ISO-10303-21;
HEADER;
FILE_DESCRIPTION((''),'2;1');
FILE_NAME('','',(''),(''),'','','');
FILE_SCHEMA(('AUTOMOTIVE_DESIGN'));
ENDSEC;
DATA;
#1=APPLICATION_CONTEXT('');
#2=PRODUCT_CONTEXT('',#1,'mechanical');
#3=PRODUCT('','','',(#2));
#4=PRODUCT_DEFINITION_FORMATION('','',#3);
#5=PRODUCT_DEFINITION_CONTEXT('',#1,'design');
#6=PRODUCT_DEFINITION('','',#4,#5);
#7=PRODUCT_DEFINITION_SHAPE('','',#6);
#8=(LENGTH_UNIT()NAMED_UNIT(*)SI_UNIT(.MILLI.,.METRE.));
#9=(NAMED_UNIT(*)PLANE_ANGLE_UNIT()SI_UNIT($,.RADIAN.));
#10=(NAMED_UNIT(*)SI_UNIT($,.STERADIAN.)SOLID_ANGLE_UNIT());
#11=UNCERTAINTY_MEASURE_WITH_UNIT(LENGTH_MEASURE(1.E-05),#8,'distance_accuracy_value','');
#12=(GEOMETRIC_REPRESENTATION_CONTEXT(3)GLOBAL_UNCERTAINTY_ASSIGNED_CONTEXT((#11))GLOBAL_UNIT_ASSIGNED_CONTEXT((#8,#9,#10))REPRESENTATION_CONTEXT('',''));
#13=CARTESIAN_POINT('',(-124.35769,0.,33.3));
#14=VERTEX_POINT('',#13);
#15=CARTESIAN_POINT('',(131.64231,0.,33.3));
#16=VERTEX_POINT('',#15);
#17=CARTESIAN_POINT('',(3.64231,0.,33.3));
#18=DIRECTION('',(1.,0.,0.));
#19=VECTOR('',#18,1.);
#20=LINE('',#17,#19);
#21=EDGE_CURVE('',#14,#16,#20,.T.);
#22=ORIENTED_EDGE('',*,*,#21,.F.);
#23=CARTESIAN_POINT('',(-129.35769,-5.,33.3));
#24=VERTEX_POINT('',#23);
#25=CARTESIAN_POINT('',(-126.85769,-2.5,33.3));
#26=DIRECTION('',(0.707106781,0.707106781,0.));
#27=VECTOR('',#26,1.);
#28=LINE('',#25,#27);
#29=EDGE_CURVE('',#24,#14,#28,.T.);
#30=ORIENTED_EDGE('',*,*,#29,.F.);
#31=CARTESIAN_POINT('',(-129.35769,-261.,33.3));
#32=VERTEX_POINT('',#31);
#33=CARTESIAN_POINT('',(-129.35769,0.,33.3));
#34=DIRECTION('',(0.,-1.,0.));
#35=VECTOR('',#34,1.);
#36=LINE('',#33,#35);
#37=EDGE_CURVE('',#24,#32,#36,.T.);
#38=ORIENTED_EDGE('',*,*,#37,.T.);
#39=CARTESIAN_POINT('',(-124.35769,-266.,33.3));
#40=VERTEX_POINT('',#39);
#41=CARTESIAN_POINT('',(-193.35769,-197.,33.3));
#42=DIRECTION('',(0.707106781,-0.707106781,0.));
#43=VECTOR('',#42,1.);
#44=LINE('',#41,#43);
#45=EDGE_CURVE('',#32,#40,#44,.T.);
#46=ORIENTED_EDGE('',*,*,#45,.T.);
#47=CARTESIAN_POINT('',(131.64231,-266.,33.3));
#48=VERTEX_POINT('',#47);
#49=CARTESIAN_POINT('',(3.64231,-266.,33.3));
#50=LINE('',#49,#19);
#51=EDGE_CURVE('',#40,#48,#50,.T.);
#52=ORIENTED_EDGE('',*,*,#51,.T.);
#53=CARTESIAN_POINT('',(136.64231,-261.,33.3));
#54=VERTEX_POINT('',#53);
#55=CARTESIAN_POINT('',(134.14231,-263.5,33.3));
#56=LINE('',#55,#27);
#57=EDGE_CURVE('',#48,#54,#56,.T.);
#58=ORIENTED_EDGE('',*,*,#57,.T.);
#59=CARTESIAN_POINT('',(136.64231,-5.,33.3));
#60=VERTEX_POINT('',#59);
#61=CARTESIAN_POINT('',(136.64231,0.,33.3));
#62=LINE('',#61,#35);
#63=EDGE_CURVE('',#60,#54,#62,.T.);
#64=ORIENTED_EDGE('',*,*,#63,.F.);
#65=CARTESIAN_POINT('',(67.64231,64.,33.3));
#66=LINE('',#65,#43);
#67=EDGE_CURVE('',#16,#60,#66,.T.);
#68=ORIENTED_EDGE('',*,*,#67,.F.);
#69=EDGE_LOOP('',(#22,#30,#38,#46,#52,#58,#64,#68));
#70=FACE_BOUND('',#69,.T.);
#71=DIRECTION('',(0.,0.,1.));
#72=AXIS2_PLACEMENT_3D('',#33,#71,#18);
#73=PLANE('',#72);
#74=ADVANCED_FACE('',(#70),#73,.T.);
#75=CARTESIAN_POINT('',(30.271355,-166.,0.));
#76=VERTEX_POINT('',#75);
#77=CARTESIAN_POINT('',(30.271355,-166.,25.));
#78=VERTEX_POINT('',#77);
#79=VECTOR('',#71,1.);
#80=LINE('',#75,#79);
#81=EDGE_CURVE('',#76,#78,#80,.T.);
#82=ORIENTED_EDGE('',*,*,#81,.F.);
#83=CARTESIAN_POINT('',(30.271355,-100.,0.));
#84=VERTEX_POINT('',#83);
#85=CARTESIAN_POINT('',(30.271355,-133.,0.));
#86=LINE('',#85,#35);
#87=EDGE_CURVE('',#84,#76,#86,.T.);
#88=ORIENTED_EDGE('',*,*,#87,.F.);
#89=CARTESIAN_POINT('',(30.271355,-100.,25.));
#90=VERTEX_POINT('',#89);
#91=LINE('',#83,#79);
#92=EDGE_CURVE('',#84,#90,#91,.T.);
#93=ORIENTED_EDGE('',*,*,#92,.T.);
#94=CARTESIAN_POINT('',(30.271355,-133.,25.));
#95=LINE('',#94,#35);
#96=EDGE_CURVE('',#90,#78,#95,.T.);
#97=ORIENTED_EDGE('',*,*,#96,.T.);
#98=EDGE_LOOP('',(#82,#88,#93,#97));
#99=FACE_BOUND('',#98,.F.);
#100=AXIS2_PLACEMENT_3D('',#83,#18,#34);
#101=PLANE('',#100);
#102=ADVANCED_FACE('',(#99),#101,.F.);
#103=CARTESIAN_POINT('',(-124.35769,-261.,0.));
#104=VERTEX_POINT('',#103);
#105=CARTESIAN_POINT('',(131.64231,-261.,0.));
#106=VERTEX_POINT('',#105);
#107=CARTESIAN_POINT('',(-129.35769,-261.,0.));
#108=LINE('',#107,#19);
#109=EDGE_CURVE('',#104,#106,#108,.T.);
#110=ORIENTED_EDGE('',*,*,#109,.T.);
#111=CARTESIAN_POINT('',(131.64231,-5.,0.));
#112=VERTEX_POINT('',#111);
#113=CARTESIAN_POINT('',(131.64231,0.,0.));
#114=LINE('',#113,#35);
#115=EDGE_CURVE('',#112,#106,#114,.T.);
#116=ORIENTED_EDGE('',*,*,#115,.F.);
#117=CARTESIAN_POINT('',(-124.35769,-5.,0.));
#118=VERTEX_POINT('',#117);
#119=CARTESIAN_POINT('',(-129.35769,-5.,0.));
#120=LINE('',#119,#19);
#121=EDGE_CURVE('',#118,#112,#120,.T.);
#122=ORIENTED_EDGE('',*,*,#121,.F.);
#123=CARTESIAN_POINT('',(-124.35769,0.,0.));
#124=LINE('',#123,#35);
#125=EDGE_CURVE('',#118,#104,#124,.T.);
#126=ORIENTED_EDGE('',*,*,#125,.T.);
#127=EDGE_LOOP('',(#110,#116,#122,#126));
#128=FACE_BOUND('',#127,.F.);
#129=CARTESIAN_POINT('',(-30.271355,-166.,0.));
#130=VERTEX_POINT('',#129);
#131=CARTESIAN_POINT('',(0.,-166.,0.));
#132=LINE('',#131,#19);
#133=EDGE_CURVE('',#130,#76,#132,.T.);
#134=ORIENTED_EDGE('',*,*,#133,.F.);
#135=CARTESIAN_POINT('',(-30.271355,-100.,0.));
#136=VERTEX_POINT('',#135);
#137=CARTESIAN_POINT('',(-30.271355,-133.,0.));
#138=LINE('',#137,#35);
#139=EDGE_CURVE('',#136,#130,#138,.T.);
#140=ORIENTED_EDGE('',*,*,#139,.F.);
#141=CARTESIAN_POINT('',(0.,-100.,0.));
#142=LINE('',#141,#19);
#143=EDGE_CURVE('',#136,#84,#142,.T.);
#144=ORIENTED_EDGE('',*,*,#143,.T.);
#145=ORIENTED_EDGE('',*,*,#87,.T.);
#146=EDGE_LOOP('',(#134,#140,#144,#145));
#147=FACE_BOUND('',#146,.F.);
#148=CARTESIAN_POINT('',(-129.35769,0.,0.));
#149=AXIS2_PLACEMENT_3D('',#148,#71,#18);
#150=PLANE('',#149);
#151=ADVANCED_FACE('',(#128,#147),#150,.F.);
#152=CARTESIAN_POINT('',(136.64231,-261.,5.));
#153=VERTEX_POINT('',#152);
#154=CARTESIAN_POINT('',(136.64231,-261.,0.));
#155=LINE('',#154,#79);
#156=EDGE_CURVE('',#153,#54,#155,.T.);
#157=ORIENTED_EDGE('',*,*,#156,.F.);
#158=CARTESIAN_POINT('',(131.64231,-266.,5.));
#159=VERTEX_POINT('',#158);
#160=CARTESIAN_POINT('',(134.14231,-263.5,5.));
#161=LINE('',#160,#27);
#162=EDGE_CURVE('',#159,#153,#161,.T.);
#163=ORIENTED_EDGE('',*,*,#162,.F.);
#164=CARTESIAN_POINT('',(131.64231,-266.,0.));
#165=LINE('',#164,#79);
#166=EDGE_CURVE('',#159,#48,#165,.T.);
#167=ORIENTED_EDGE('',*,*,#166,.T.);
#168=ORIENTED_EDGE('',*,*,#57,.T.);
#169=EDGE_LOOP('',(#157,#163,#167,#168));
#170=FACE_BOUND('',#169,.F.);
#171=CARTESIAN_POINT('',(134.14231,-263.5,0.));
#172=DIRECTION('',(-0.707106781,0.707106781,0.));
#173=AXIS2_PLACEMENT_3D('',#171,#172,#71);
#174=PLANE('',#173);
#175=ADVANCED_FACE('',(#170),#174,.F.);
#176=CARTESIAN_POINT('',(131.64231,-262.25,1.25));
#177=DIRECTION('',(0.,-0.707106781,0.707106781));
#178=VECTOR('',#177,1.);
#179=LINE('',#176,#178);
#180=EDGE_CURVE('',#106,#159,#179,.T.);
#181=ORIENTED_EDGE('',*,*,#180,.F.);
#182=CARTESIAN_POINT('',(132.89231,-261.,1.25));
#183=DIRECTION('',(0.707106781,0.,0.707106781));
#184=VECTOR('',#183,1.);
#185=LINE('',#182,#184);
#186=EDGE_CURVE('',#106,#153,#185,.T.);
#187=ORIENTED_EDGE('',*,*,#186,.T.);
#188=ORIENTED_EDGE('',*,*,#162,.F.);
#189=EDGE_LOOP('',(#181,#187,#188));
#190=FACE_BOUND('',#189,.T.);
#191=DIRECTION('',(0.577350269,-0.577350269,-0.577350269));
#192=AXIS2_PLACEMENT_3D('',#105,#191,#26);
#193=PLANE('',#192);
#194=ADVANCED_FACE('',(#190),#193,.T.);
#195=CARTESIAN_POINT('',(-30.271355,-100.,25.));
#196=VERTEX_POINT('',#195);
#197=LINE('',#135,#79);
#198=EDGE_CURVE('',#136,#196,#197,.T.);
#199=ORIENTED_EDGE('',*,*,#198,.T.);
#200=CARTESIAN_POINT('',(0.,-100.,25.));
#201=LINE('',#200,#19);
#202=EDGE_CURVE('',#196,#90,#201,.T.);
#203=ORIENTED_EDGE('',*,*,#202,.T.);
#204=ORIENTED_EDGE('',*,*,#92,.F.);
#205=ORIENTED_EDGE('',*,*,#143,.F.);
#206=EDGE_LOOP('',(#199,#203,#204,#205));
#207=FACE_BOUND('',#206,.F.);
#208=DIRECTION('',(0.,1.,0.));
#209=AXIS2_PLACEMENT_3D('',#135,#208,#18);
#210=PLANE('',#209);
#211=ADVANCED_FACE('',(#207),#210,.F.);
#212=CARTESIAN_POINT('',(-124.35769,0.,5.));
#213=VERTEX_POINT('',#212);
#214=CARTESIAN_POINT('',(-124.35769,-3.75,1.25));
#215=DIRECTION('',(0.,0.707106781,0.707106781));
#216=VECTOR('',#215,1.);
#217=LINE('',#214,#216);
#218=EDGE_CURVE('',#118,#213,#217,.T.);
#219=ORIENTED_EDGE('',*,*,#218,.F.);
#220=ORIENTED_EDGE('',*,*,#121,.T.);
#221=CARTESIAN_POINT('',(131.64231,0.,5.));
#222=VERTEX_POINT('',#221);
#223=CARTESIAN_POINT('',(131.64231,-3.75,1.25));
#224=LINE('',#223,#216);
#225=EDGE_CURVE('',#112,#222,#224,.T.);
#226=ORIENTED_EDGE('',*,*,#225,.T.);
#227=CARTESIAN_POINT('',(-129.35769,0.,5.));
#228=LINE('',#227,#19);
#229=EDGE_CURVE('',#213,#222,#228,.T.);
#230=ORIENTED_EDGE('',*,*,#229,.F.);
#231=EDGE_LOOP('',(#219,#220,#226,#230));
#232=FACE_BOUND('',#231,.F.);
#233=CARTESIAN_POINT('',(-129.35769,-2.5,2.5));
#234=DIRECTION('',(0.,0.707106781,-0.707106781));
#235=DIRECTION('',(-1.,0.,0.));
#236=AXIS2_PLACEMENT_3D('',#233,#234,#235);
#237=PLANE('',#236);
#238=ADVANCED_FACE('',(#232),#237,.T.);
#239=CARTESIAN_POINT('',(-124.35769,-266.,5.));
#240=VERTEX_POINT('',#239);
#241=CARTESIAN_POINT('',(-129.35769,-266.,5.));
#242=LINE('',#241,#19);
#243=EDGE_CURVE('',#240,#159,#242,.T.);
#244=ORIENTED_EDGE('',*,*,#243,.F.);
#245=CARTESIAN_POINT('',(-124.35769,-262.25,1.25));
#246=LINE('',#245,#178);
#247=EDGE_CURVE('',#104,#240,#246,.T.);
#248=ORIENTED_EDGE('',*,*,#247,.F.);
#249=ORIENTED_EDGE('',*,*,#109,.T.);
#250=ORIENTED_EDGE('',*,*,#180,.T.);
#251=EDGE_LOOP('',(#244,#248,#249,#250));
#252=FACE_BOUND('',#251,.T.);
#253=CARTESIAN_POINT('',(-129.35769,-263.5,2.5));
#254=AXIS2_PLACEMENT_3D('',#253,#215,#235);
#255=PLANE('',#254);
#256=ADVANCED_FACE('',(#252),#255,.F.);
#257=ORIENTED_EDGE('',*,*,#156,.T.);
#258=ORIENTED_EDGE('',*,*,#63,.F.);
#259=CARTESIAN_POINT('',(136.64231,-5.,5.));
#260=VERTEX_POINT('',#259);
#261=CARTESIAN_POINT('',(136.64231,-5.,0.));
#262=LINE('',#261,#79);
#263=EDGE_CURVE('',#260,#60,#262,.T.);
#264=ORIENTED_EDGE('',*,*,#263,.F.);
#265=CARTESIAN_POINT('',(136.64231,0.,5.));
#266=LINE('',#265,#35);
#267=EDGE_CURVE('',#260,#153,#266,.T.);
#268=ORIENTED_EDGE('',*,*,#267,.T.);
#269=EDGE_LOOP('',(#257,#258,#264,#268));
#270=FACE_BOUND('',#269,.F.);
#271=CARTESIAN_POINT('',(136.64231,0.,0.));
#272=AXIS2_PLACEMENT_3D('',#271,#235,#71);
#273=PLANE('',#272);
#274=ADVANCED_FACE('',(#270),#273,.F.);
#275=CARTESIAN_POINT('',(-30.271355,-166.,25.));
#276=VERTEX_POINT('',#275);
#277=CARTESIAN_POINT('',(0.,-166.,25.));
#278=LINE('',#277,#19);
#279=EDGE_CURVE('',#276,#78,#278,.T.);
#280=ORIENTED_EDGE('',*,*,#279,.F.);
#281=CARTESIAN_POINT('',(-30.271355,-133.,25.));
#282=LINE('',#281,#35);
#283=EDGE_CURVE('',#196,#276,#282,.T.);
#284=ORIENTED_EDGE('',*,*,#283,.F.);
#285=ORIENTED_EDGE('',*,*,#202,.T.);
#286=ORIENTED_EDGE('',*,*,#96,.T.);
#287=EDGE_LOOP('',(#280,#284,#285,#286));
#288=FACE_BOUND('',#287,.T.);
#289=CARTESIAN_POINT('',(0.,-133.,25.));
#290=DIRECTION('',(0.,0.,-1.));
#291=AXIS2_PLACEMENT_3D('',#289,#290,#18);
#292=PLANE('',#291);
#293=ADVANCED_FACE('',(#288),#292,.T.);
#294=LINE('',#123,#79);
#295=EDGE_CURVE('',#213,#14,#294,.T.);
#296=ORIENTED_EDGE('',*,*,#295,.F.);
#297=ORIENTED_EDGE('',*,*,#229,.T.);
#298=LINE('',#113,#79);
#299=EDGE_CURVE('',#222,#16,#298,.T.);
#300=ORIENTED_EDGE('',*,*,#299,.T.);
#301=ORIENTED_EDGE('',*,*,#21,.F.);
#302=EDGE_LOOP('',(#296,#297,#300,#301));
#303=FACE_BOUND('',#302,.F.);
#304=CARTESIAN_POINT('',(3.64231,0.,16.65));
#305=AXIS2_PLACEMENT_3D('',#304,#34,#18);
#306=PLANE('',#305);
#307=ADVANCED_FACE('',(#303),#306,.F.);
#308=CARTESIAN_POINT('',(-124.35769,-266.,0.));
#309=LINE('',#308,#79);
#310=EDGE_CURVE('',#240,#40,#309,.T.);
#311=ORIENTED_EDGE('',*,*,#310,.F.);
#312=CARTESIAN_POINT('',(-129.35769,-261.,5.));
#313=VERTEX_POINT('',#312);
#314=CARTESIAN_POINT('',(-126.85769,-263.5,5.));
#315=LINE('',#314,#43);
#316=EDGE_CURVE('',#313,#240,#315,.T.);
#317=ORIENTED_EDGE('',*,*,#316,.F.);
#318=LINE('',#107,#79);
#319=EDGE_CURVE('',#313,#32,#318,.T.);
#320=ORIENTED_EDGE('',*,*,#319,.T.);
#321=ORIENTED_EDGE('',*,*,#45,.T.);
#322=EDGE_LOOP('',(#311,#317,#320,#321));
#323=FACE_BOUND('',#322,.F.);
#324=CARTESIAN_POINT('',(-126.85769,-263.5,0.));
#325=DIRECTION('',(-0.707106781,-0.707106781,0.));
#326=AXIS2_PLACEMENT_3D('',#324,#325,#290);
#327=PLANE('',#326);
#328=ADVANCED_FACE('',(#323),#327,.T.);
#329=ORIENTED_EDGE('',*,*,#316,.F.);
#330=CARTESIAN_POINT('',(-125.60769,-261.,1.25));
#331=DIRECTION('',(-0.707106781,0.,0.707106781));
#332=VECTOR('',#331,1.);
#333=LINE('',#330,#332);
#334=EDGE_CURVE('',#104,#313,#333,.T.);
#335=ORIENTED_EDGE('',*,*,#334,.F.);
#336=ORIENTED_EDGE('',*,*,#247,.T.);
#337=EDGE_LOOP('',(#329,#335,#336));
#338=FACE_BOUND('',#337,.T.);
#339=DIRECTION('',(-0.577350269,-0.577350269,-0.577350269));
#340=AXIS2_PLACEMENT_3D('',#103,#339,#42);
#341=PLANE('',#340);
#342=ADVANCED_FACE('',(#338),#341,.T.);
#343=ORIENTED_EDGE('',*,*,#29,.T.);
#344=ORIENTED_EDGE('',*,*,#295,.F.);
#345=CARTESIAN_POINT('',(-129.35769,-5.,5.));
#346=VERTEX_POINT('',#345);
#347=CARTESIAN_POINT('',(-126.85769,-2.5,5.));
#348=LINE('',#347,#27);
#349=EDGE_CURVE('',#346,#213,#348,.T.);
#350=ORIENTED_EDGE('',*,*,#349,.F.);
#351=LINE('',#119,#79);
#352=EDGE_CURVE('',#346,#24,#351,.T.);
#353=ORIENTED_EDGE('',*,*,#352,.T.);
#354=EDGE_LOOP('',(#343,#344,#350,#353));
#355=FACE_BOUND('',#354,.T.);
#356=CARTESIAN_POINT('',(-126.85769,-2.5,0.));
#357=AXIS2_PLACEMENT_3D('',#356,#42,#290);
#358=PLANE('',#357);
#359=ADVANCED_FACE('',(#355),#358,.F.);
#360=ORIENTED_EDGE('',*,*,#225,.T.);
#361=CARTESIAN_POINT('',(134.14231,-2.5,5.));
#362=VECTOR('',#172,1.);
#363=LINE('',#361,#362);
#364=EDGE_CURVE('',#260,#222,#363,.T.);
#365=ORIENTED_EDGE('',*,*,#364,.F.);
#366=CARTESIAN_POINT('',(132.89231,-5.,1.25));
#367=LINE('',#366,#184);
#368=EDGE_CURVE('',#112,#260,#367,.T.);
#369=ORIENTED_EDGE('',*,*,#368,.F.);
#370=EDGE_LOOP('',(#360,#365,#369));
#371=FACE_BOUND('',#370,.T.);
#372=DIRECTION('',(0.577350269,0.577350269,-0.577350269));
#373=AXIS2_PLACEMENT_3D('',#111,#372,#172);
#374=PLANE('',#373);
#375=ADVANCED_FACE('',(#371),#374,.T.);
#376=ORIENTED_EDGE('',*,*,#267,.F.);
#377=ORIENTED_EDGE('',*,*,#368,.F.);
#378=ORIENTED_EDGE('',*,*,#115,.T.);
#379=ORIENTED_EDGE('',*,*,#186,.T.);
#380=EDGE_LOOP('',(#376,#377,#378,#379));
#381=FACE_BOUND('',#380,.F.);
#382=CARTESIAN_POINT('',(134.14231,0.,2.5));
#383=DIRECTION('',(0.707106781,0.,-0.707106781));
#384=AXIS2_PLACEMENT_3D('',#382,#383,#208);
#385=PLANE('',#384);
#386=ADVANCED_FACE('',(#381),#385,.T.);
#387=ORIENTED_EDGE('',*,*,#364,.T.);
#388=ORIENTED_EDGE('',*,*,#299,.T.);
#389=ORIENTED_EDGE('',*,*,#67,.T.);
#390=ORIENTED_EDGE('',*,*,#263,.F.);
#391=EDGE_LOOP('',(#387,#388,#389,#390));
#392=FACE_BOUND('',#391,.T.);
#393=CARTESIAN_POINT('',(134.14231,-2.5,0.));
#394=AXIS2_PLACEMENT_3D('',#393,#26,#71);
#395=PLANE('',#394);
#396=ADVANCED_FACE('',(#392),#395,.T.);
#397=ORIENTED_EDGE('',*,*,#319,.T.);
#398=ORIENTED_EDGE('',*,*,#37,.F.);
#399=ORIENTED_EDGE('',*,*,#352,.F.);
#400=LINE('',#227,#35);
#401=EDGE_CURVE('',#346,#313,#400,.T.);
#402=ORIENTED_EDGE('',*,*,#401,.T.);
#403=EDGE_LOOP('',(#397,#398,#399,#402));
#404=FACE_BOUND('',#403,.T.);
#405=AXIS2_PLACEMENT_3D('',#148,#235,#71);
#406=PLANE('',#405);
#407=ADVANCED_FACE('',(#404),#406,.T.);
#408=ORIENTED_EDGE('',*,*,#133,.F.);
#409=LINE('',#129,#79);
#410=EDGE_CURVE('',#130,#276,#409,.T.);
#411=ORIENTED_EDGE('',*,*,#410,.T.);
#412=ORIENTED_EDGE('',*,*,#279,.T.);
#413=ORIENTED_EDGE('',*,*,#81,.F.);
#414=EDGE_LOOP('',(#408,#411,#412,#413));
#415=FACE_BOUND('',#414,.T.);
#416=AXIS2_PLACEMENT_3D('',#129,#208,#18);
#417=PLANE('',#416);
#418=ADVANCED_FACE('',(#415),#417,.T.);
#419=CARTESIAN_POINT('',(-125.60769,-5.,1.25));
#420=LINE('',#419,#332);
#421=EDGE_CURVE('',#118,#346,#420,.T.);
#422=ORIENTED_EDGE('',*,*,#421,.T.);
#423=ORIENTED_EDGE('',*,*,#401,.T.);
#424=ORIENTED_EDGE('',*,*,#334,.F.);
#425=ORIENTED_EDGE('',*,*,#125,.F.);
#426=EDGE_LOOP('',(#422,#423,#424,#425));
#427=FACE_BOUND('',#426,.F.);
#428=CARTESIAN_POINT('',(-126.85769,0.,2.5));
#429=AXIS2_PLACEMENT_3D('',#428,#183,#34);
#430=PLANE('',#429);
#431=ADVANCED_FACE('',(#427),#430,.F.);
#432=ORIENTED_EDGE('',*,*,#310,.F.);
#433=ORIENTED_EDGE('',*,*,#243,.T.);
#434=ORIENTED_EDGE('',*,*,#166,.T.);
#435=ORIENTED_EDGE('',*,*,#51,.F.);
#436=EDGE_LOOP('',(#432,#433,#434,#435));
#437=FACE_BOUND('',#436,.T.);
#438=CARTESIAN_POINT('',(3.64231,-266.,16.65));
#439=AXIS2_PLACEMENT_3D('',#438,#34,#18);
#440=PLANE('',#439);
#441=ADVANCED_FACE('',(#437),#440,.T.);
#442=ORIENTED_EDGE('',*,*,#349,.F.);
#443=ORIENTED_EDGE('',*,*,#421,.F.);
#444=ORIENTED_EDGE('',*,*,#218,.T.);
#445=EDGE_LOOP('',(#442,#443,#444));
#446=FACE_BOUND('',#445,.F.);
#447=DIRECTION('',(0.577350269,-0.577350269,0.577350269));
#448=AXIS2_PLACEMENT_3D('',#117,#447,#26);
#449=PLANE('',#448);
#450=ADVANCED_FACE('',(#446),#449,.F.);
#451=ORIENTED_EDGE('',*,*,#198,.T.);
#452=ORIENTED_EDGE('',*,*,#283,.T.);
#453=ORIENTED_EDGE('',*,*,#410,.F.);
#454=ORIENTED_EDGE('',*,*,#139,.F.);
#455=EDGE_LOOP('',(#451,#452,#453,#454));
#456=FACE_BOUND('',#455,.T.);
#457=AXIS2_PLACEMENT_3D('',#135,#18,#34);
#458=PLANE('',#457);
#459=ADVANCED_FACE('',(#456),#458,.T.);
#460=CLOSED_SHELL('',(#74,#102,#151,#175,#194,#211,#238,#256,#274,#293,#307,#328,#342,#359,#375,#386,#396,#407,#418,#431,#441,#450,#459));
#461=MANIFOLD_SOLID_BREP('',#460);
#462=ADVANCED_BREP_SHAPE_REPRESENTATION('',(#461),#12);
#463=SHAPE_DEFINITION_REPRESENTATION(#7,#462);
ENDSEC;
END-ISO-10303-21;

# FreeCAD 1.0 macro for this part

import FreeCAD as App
import Part
import Sketcher

V = App.Vector


def edges_at(feature, points):
    """Names of the edges that pass closest to the given points."""
    edges = feature.Shape.Edges
    near = lambda p: min(range(len(edges)), key=lambda i: edges[i].distToShape(Part.Vertex(*p))[0])
    return sorted({f"Edge{near(p) + 1}" for p in points})

doc = App.newDocument("Part")
body = doc.addObject("PartDesign::Body", "Body")

sketch1 = body.newObject("Sketcher::SketchObject", "Sketch")
sketch1.AttachmentSupport = (doc.getObject("XZ_Plane"), [""])
sketch1.MapMode = "FlatFace"
sketch1.addGeometry(Part.LineSegment(V(-129.35769, 33.3, 0), V(-129.35769, 0, 0)), False)
sketch1.addGeometry(Part.LineSegment(V(-129.35769, 0, 0), V(136.64231, 0, 0)), False)
sketch1.addGeometry(Part.LineSegment(V(136.64231, 0, 0), V(136.64231, 33.3, 0)), False)
sketch1.addGeometry(Part.LineSegment(V(136.64231, 33.3, 0), V(-129.35769, 33.3, 0)), False)
sketch1.addConstraint(Sketcher.Constraint("Coincident", 0, 2, 1, 1))
sketch1.addConstraint(Sketcher.Constraint("Coincident", 1, 2, 2, 1))
sketch1.addConstraint(Sketcher.Constraint("Coincident", 2, 2, 3, 1))
sketch1.addConstraint(Sketcher.Constraint("Coincident", 3, 2, 0, 1))
sketch1.addConstraint(Sketcher.Constraint("Vertical", 0))
sketch1.addConstraint(Sketcher.Constraint("Horizontal", 1))
sketch1.addConstraint(Sketcher.Constraint("Vertical", 2))
sketch1.addConstraint(Sketcher.Constraint("Horizontal", 3))
sketch1.addConstraint(Sketcher.Constraint("PointOnObject", 0, 2, -1))
sketch1.addConstraint(Sketcher.Constraint("DistanceX", 1, 1, 1, 2, 266.0))
sketch1.addConstraint(Sketcher.Constraint("DistanceY", 0, 2, 0, 1, 33.3))
sketch1.addConstraint(Sketcher.Constraint("DistanceX", 0, 2, -1, 1, 129.35769))
pad1 = body.newObject("PartDesign::Pad", "Pad")
pad1.Profile = sketch1
pad1.Length = 266

sketch2 = body.newObject("Sketcher::SketchObject", "Sketch001")
sketch2.AttachmentSupport = (doc.getObject("XY_Plane"), [""])
sketch2.MapMode = "FlatFace"
sketch2.addGeometry(Part.LineSegment(V(-30.271355, -166, 0), V(-30.271355, -100, 0)), False)
sketch2.addGeometry(Part.LineSegment(V(-30.271355, -100, 0), V(30.271355, -100, 0)), False)
sketch2.addGeometry(Part.LineSegment(V(30.271355, -100, 0), V(30.271355, -166, 0)), False)
sketch2.addGeometry(Part.LineSegment(V(30.271355, -166, 0), V(-30.271355, -166, 0)), False)
sketch2.addConstraint(Sketcher.Constraint("Coincident", 0, 2, 1, 1))
sketch2.addConstraint(Sketcher.Constraint("Coincident", 1, 2, 2, 1))
sketch2.addConstraint(Sketcher.Constraint("Coincident", 2, 2, 3, 1))
sketch2.addConstraint(Sketcher.Constraint("Coincident", 3, 2, 0, 1))
sketch2.addConstraint(Sketcher.Constraint("Vertical", 0))
sketch2.addConstraint(Sketcher.Constraint("Horizontal", 1))
sketch2.addConstraint(Sketcher.Constraint("Vertical", 2))
sketch2.addConstraint(Sketcher.Constraint("Horizontal", 3))
sketch2.addConstraint(Sketcher.Constraint("DistanceY", 0, 1, 0, 2, 66.0))
sketch2.addConstraint(Sketcher.Constraint("DistanceY", 0, 2, -1, 1, 100.0))
sketch2.addConstraint(Sketcher.Constraint("DistanceX", 1, 1, 1, 2, 60.54271))
sketch2.addConstraint(Sketcher.Constraint("DistanceX", 0, 2, -1, 1, 30.271355))
pocket1 = body.newObject("PartDesign::Pocket", "Pocket")
pocket1.Profile = sketch2
pocket1.Length = 25
pocket1.Reversed = True
doc.recompute()

chamfer = body.newObject("PartDesign::Chamfer", "Chamfer")
chamfer.Base = (pocket1, edges_at(pocket1, [
    (136.642, -266, 16.65),
    (136.642, 0, 16.65),
    (-129.358, 0, 16.65),
    (-129.358, -266, 16.65),
    (-129.358, -133, 0),
    (3.642, -266, 0),
    (136.642, -133, 0),
    (3.642, 0, 0),
]))
chamfer.Size = 5

doc.recompute()
